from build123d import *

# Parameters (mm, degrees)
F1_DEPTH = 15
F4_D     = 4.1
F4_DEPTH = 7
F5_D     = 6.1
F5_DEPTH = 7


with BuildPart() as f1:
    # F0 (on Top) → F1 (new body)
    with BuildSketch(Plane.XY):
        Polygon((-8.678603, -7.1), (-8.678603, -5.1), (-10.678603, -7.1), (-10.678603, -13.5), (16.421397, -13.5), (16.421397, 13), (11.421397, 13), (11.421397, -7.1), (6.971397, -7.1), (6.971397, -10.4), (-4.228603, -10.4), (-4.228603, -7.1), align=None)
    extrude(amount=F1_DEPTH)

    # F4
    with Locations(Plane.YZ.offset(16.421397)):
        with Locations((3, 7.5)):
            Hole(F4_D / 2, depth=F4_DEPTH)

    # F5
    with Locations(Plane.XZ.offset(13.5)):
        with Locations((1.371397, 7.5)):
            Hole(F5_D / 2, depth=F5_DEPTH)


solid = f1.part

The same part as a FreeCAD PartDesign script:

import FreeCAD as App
import Part
import Sketcher

V = App.Vector
Q = App.Units.Quantity

doc = App.newDocument("Part")
body = doc.addObject("PartDesign::Body", "Body")

# Sketch on XY plane
sketch1 = body.newObject("Sketcher::SketchObject", "Sketch")
sketch1.AttachmentSupport = (doc.getObject("XY_Plane"), [""])
sketch1.MapMode = "FlatFace"
sketch1.addGeometry(Part.LineSegment(V(-8.7, -7.1, 0), V(-8.7, -5.1, 0)), False)
sketch1.addGeometry(Part.LineSegment(V(-8.7, -5.1, 0), V(-10.7, -7.1, 0)), False)
sketch1.addGeometry(Part.LineSegment(V(-10.7, -7.1, 0), V(-10.7, -13.5, 0)), False)
sketch1.addGeometry(Part.LineSegment(V(-10.7, -13.5, 0), V(16.4, -13.5, 0)), False)
sketch1.addGeometry(Part.LineSegment(V(16.4, -13.5, 0), V(16.4, 13, 0)), False)
sketch1.addGeometry(Part.LineSegment(V(16.4, 13, 0), V(11.4, 13, 0)), False)
sketch1.addGeometry(Part.LineSegment(V(11.4, 13, 0), V(11.4, -7.1, 0)), False)
sketch1.addGeometry(Part.LineSegment(V(11.4, -7.1, 0), V(7, -7.1, 0)), False)
sketch1.addGeometry(Part.LineSegment(V(7, -7.1, 0), V(7, -10.4, 0)), False)
sketch1.addGeometry(Part.LineSegment(V(7, -10.4, 0), V(-4.2, -10.4, 0)), False)
sketch1.addGeometry(Part.LineSegment(V(-4.2, -10.4, 0), V(-4.2, -7.1, 0)), False)
sketch1.addGeometry(Part.LineSegment(V(-4.2, -7.1, 0), V(-8.7, -7.1, 0)), False)
sketch1.addConstraint(Sketcher.Constraint("Coincident", 0, 2, 1, 1))
sketch1.addConstraint(Sketcher.Constraint("Coincident", 1, 2, 2, 1))
sketch1.addConstraint(Sketcher.Constraint("Coincident", 2, 2, 3, 1))
sketch1.addConstraint(Sketcher.Constraint("Coincident", 3, 2, 4, 1))
sketch1.addConstraint(Sketcher.Constraint("Coincident", 4, 2, 5, 1))
sketch1.addConstraint(Sketcher.Constraint("Coincident", 5, 2, 6, 1))
sketch1.addConstraint(Sketcher.Constraint("Coincident", 6, 2, 7, 1))
sketch1.addConstraint(Sketcher.Constraint("Coincident", 7, 2, 8, 1))
sketch1.addConstraint(Sketcher.Constraint("Coincident", 8, 2, 9, 1))
sketch1.addConstraint(Sketcher.Constraint("Coincident", 9, 2, 10, 1))
sketch1.addConstraint(Sketcher.Constraint("Coincident", 10, 2, 11, 1))
sketch1.addConstraint(Sketcher.Constraint("Coincident", 11, 2, 0, 1))
sketch1.addConstraint(Sketcher.Constraint("Vertical", 0))
sketch1.addConstraint(Sketcher.Constraint("Vertical", 2))
sketch1.addConstraint(Sketcher.Constraint("Horizontal", 3))
sketch1.addConstraint(Sketcher.Constraint("Vertical", 4))
sketch1.addConstraint(Sketcher.Constraint("Horizontal", 5))
sketch1.addConstraint(Sketcher.Constraint("Vertical", 6))
sketch1.addConstraint(Sketcher.Constraint("Horizontal", 7))
sketch1.addConstraint(Sketcher.Constraint("Vertical", 8))
sketch1.addConstraint(Sketcher.Constraint("Horizontal", 9))
sketch1.addConstraint(Sketcher.Constraint("Vertical", 10))
sketch1.addConstraint(Sketcher.Constraint("Horizontal", 11))
sketch1.addConstraint(Sketcher.Constraint("Horizontal", 1, 2, 6, 2))
sketch1.addConstraint(Sketcher.Constraint("Horizontal", 7, 2, 10, 2))
sketch1.addConstraint(Sketcher.Constraint("Equal", 7, 11))
sketch1.addConstraint(Sketcher.Constraint("DistanceX", 5, 2, 5, 1, 5.0))
sketch1.addConstraint(Sketcher.Constraint("DistanceY", 0, 1, 0, 2, 2.0))
sketch1.addConstraint(Sketcher.Constraint("Angle", 1, Q("-135 deg")))
sketch1.addConstraint(Sketcher.Constraint("DistanceX", 3, 1, 3, 2, 27.1))
sketch1.addConstraint(Sketcher.Constraint("DistanceX", 9, 2, 9, 1, 11.2))
sketch1.addConstraint(Sketcher.Constraint("DistanceY", 2, 2, 2, 1, 6.4))
sketch1.addConstraint(Sketcher.Constraint("DistanceY", 4, 1, 4, 2, 26.5))
sketch1.addConstraint(Sketcher.Constraint("DistanceY", 8, 2, 8, 1, 3.3))
sketch1.addConstraint(Sketcher.Constraint("DistanceY", -1, 1, 4, 2, 13.0))
sketch1.addConstraint(Sketcher.Constraint("DistanceX", 0, 2, -1, 1, 8.678603))
pad1 = body.newObject("PartDesign::Pad", "Pad")
pad1.Profile = sketch1
pad1.Length = 15

# Sketch on YZ plane
sketch2 = body.newObject("Sketcher::SketchObject", "Sketch001")
sketch2.AttachmentSupport = (doc.getObject("YZ_Plane"), [""])
sketch2.MapMode = "FlatFace"
sketch2.AttachmentOffset = App.Placement(V(0, 0, 16.421397), App.Rotation())
sketch2.addGeometry(Part.Circle(V(3, 7.5, 0), V(0, 0, 1), 2), False)
sketch2.addConstraint(Sketcher.Constraint("Diameter", 0, 4.1))
sketch2.addConstraint(Sketcher.Constraint("DistanceX", -1, 1, 0, 3, 3.0))
sketch2.addConstraint(Sketcher.Constraint("DistanceY", -1, 1, 0, 3, 7.5))
doc.recompute()
hole = body.newObject("PartDesign::Hole", "Hole")
hole.Profile = sketch2
hole.ThreadType = "None"
hole.Diameter = 4.1
hole.DepthType = "Dimension"
hole.Depth = 7
hole.DrillPoint = "Flat"

# Sketch on XZ plane
sketch3 = body.newObject("Sketcher::SketchObject", "Sketch002")
sketch3.AttachmentSupport = (doc.getObject("XZ_Plane"), [""])
sketch3.MapMode = "FlatFace"
sketch3.AttachmentOffset = App.Placement(V(0, 0, 13.5), App.Rotation())
sketch3.addGeometry(Part.Circle(V(1.4, 7.5, 0), V(0, 0, 1), 3), False)
sketch3.addConstraint(Sketcher.Constraint("Diameter", 0, 6.1))
sketch3.addConstraint(Sketcher.Constraint("DistanceY", -1, 1, 0, 3, 7.5))
sketch3.addConstraint(Sketcher.Constraint("DistanceX", -1, 1, 0, 3, 1.371397))
doc.recompute()
hole2 = body.newObject("PartDesign::Hole", "Hole001")
hole2.Profile = sketch3
hole2.ThreadType = "None"
hole2.Diameter = 6.1
hole2.DepthType = "Dimension"
hole2.Depth = 7
hole2.DrillPoint = "Flat"

doc.recompute()
